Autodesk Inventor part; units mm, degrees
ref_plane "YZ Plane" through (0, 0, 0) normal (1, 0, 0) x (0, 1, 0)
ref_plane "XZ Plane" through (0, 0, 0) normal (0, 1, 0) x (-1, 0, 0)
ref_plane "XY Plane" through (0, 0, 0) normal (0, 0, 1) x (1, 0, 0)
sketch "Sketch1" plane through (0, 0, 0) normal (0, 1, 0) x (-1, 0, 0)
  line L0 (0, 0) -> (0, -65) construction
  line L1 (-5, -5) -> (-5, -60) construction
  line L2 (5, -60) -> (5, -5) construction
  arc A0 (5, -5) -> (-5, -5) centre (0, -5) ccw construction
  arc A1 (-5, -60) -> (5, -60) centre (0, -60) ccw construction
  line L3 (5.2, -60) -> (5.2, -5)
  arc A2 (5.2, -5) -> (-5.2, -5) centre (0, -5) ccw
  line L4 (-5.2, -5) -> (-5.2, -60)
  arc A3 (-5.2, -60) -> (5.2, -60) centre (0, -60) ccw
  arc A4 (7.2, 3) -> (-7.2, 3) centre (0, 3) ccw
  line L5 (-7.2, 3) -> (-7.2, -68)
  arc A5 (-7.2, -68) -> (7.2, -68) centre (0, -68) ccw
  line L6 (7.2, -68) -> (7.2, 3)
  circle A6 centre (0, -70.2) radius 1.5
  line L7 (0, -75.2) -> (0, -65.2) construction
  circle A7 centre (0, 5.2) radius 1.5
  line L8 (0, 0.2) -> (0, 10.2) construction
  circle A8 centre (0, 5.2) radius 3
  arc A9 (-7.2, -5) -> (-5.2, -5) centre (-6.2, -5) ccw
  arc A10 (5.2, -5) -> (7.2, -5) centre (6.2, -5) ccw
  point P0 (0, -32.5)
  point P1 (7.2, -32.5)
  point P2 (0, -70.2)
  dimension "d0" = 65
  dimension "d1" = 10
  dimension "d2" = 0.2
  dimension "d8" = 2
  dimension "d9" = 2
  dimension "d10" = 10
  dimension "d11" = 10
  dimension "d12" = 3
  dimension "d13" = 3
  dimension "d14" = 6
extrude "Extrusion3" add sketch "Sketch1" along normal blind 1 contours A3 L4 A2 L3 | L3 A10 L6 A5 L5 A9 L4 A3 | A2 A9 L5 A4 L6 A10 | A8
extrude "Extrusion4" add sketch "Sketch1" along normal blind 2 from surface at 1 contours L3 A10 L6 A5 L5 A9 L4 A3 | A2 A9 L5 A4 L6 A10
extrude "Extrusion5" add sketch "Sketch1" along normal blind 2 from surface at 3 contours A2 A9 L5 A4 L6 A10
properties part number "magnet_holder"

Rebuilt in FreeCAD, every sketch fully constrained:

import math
import FreeCAD as App
import Part
import Sketcher
from FreeCAD import Vector
Q = App.Units.Quantity

doc = App.newDocument("Part")
body = doc.addObject("PartDesign::Body", "Body")

sketch1 = doc.addObject("Sketcher::SketchObject", "Sketch")
body.addObject(sketch1)
sketch1.AttachmentSupport = (doc.XZ_Plane, [""])
sketch1.MapMode = "FlatFace"
sketch1.addGeometry(Part.LineSegment(Vector(-7.2, -68, 0), Vector(-7.2, 3, 0)), False)
sketch1.addGeometry(Part.ArcOfCircle(Part.Circle(Vector(0, 3, 0), Vector(0, 0, 1), 7.2), math.radians(0), math.radians(180)), False)
sketch1.addGeometry(Part.LineSegment(Vector(7.2, 3, 0), Vector(7.2, -68, 0)), False)
sketch1.addGeometry(Part.ArcOfCircle(Part.Circle(Vector(0, -68, 0), Vector(0, 0, 1), 7.2), math.radians(180), math.radians(360)), False)
sketch1.addGeometry(Part.Circle(Vector(0, -70.2, 0), Vector(0, 0, 1), 1.5), False)
sketch1.addGeometry(Part.Circle(Vector(0, 5.2, 0), Vector(0, 0, 1), 1.5), False)
sketch1.addConstraint(Sketcher.Constraint("Tangent", 0, 2, 1, 2))
sketch1.addConstraint(Sketcher.Constraint("Tangent", 1, 1, 2, 1))
sketch1.addConstraint(Sketcher.Constraint("Tangent", 2, 2, 3, 2))
sketch1.addConstraint(Sketcher.Constraint("Tangent", 3, 1, 0, 1))
sketch1.addConstraint(Sketcher.Constraint("Vertical", 0))
sketch1.addConstraint(Sketcher.Constraint("Vertical", 2))
sketch1.addConstraint(Sketcher.Constraint("Equal", 4, 5))
sketch1.addConstraint(Sketcher.Constraint("PointOnObject", 1, 3, -2))
sketch1.addConstraint(Sketcher.Constraint("PointOnObject", 4, 3, -2))
sketch1.addConstraint(Sketcher.Constraint("PointOnObject", 5, 3, -2))
sketch1.addConstraint(Sketcher.Constraint("Diameter", 4, Q("3 mm")))
sketch1.addConstraint(Sketcher.Constraint("DistanceY", -1, 1, 1, 3, Q("3 mm")))
sketch1.addConstraint(Sketcher.Constraint("Radius", 1, Q("7.2 mm")))
sketch1.addConstraint(Sketcher.Constraint("DistanceY", 0, 1, 0, 2, Q("71 mm")))
sketch1.addConstraint(Sketcher.Constraint("DistanceY", 4, 3, -1, 1, Q("70.2 mm")))
sketch1.addConstraint(Sketcher.Constraint("DistanceY", -1, 1, 5, 3, Q("5.2 mm")))
pad1 = doc.addObject("PartDesign::Pad", "Pad")
body.addObject(pad1)
pad1.Profile = sketch1
pad1.Length = 1
pad1.Reversed = True

sketch2 = doc.addObject("Sketcher::SketchObject", "Sketch001")
body.addObject(sketch2)
sketch2.AttachmentSupport = (doc.XZ_Plane, [""])
sketch2.MapMode = "FlatFace"
sketch2.AttachmentOffset = App.Placement(Vector(0, 0, -1), App.Rotation())
sketch2.addGeometry(Part.LineSegment(Vector(-7.2, -68, 0), Vector(-7.2, 3, 0)), False)
sketch2.addGeometry(Part.ArcOfCircle(Part.Circle(Vector(0, 3, 0), Vector(0, 0, 1), 7.2), math.radians(0), math.radians(180)), False)
sketch2.addGeometry(Part.LineSegment(Vector(7.2, 3, 0), Vector(7.2, -68, 0)), False)
sketch2.addGeometry(Part.ArcOfCircle(Part.Circle(Vector(0, -68, 0), Vector(0, 0, 1), 7.2), math.radians(180), math.radians(360)), False)
sketch2.addGeometry(Part.LineSegment(Vector(-5.2, -5, 0), Vector(-5.2, -60, 0)), False)
sketch2.addGeometry(Part.ArcOfCircle(Part.Circle(Vector(0, -60, 0), Vector(0, 0, 1), 5.2), math.radians(180), math.radians(360)), False)
sketch2.addGeometry(Part.LineSegment(Vector(5.2, -60, 0), Vector(5.2, -5, 0)), False)
sketch2.addGeometry(Part.ArcOfCircle(Part.Circle(Vector(0, -5, 0), Vector(0, 0, 1), 5.2), math.radians(0), math.radians(180)), False)
sketch2.addGeometry(Part.Circle(Vector(0, -70.2, 0), Vector(0, 0, 1), 1.5), False)
sketch2.addGeometry(Part.Circle(Vector(0, 5.2, 0), Vector(0, 0, 1), 3), False)
sketch2.addConstraint(Sketcher.Constraint("Tangent", 0, 2, 1, 2))
sketch2.addConstraint(Sketcher.Constraint("Tangent", 1, 1, 2, 1))
sketch2.addConstraint(Sketcher.Constraint("Tangent", 2, 2, 3, 2))
sketch2.addConstraint(Sketcher.Constraint("Tangent", 3, 1, 0, 1))
sketch2.addConstraint(Sketcher.Constraint("Tangent", 4, 2, 5, 1))
sketch2.addConstraint(Sketcher.Constraint("Tangent", 5, 2, 6, 1))
sketch2.addConstraint(Sketcher.Constraint("Tangent", 6, 2, 7, 1))
sketch2.addConstraint(Sketcher.Constraint("Tangent", 7, 2, 4, 1))
sketch2.addConstraint(Sketcher.Constraint("Vertical", 0))
sketch2.addConstraint(Sketcher.Constraint("Vertical", 2))
sketch2.addConstraint(Sketcher.Constraint("Vertical", 4))
sketch2.addConstraint(Sketcher.Constraint("Vertical", 6))
sketch2.addConstraint(Sketcher.Constraint("PointOnObject", 1, 3, -2))
sketch2.addConstraint(Sketcher.Constraint("PointOnObject", 5, 3, -2))
sketch2.addConstraint(Sketcher.Constraint("PointOnObject", 8, 3, -2))
sketch2.addConstraint(Sketcher.Constraint("PointOnObject", 9, 3, -2))
sketch2.addConstraint(Sketcher.Constraint("Diameter", 8, Q("3 mm")))
sketch2.addConstraint(Sketcher.Constraint("Diameter", 9, Q("6 mm")))
sketch2.addConstraint(Sketcher.Constraint("DistanceY", -1, 1, 1, 3, Q("3 mm")))
sketch2.addConstraint(Sketcher.Constraint("DistanceX", 3, 1, 4, 2, Q("2 mm")))
sketch2.addConstraint(Sketcher.Constraint("Radius", 1, Q("7.2 mm")))
sketch2.addConstraint(Sketcher.Constraint("DistanceY", 0, 1, 0, 2, Q("71 mm")))
sketch2.addConstraint(Sketcher.Constraint("DistanceY", 4, 2, 4, 1, Q("55 mm")))
sketch2.addConstraint(Sketcher.Constraint("DistanceY", 5, 3, -1, 1, Q("60 mm")))
sketch2.addConstraint(Sketcher.Constraint("DistanceY", 8, 3, -1, 1, Q("70.2 mm")))
sketch2.addConstraint(Sketcher.Constraint("DistanceY", -1, 1, 9, 3, Q("5.2 mm")))
pad2 = doc.addObject("PartDesign::Pad", "Pad001")
body.addObject(pad2)
pad2.Profile = sketch2
pad2.Length = 2
pad2.Reversed = True

sketch3 = doc.addObject("Sketcher::SketchObject", "Sketch002")
body.addObject(sketch3)
sketch3.AttachmentSupport = (doc.XZ_Plane, [""])
sketch3.MapMode = "FlatFace"
sketch3.AttachmentOffset = App.Placement(Vector(0, 0, -3), App.Rotation())
sketch3.addGeometry(Part.ArcOfCircle(Part.Circle(Vector(0, -5, 0), Vector(0, 0, 1), 5.2), math.radians(0), math.radians(180)), False)
sketch3.addGeometry(Part.ArcOfCircle(Part.Circle(Vector(-6.2, -5, 0), Vector(0, 0, 1), 1), math.radians(180), math.radians(360)), False)
sketch3.addGeometry(Part.LineSegment(Vector(-7.2, -5, 0), Vector(-7.2, 3, 0)), False)
sketch3.addGeometry(Part.ArcOfCircle(Part.Circle(Vector(0, 3, 0), Vector(0, 0, 1), 7.2), math.radians(0), math.radians(180)), False)
sketch3.addGeometry(Part.LineSegment(Vector(7.2, 3, 0), Vector(7.2, -5, 0)), False)
sketch3.addGeometry(Part.ArcOfCircle(Part.Circle(Vector(6.2, -5, 0), Vector(0, 0, 1), 1), math.radians(180), math.radians(360)), False)
sketch3.addGeometry(Part.Circle(Vector(0, 5.2, 0), Vector(0, 0, 1), 3), False)
sketch3.addConstraint(Sketcher.Constraint("Tangent", 0, 2, 1, 2))
sketch3.addConstraint(Sketcher.Constraint("Tangent", 1, 1, 2, 1))
sketch3.addConstraint(Sketcher.Constraint("Tangent", 2, 2, 3, 2))
sketch3.addConstraint(Sketcher.Constraint("Tangent", 3, 1, 4, 1))
sketch3.addConstraint(Sketcher.Constraint("Tangent", 4, 2, 5, 2))
sketch3.addConstraint(Sketcher.Constraint("Tangent", 5, 1, 0, 1))
sketch3.addConstraint(Sketcher.Constraint("Vertical", 2))
sketch3.addConstraint(Sketcher.Constraint("Vertical", 4))
sketch3.addConstraint(Sketcher.Constraint("Equal", 1, 5))
sketch3.addConstraint(Sketcher.Constraint("Symmetric", 1, 3, 5, 3, -2))
sketch3.addConstraint(Sketcher.Constraint("PointOnObject", 6, 3, -2))
sketch3.addConstraint(Sketcher.Constraint("Horizontal", 0, 3, 1, 3))
sketch3.addConstraint(Sketcher.Constraint("Diameter", 6, Q("6 mm")))
sketch3.addConstraint(Sketcher.Constraint("Radius", 1, Q("1 mm")))
sketch3.addConstraint(Sketcher.Constraint("DistanceY", -1, 1, 3, 3, Q("3 mm")))
sketch3.addConstraint(Sketcher.Constraint("Radius", 0, Q("5.2 mm")))
sketch3.addConstraint(Sketcher.Constraint("DistanceY", 2, 1, 2, 2, Q("8 mm")))
sketch3.addConstraint(Sketcher.Constraint("DistanceY", -1, 1, 6, 3, Q("5.2 mm")))
pad3 = doc.addObject("PartDesign::Pad", "Pad002")
body.addObject(pad3)
pad3.Profile = sketch3
pad3.Length = 2
pad3.Reversed = True

doc.recompute()
